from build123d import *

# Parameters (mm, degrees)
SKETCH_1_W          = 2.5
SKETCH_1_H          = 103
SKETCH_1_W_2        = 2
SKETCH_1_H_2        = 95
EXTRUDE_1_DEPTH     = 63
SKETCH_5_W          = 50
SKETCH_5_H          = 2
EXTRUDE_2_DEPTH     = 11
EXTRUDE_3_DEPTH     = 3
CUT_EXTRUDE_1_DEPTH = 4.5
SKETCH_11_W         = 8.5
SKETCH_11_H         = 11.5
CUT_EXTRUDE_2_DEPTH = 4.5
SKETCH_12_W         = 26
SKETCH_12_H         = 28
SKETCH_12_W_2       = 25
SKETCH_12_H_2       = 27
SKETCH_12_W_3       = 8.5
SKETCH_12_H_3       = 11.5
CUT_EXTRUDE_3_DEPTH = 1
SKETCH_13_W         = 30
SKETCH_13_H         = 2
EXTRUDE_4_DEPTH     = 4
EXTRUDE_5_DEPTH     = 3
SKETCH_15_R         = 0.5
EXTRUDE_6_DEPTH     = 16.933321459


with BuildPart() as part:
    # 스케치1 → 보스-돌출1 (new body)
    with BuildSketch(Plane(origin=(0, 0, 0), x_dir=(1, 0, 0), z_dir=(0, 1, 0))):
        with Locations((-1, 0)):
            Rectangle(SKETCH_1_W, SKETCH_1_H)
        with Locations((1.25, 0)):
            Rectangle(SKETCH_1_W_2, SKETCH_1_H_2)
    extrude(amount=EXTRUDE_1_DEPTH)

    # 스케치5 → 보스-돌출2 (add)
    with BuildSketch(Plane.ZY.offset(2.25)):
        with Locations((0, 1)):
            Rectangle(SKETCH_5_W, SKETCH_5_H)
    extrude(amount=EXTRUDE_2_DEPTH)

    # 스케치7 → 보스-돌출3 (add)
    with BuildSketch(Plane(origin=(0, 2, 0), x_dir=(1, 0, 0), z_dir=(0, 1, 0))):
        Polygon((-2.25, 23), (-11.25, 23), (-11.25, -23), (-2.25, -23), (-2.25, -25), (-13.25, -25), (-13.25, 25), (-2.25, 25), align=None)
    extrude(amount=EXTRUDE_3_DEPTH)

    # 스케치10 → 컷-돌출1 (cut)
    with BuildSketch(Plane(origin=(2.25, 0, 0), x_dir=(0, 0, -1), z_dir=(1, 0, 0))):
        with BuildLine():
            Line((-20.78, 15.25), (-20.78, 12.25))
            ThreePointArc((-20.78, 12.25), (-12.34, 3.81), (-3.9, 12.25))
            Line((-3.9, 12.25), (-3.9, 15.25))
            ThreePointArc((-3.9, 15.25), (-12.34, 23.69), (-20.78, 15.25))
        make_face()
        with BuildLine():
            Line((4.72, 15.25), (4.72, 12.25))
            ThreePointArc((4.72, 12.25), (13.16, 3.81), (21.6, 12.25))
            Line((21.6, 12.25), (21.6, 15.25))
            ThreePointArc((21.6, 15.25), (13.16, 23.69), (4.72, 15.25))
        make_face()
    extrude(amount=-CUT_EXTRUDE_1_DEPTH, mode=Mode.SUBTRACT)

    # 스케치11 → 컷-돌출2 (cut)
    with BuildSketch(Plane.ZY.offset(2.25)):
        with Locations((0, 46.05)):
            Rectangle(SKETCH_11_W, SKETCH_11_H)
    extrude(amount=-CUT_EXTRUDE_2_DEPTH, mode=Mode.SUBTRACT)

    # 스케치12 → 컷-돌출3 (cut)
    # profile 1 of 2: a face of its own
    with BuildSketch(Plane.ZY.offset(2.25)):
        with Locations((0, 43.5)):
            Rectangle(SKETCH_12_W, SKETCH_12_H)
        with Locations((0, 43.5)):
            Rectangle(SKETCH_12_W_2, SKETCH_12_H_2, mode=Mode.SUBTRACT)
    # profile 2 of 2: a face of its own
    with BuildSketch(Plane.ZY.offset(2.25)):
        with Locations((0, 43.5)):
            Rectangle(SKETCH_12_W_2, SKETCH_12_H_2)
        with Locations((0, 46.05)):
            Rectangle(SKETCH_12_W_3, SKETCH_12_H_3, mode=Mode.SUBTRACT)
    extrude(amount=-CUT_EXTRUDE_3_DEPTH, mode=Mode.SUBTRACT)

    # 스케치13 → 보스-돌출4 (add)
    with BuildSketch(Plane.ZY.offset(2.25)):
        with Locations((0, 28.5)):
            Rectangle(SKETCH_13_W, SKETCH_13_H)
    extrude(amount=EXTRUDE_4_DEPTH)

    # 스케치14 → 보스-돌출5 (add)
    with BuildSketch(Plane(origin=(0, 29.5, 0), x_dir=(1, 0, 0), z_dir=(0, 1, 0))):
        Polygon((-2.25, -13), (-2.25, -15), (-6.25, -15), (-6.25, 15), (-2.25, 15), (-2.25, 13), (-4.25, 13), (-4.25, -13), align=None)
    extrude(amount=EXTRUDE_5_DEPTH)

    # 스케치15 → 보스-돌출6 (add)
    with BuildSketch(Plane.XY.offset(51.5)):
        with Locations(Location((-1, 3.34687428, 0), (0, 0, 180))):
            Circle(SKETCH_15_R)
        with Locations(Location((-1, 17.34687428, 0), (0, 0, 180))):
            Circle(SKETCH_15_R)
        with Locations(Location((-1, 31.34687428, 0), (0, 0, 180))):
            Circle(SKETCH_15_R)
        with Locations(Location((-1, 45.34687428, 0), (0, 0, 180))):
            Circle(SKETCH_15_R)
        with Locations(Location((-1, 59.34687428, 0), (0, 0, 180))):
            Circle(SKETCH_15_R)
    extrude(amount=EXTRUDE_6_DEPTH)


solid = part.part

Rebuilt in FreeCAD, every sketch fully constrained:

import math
import FreeCAD as App
import Part
import Sketcher
from FreeCAD import Vector
Q = App.Units.Quantity


def add_polygon(sketch, points):
    """Adds a closed chain of lines whose ends are joined by coincident constraints."""
    first, n = sketch.GeometryCount, len(points)
    for a, b in zip(points, points[1:] + points[:1]):
        sketch.addGeometry(Part.LineSegment(App.Vector(*a, 0), App.Vector(*b, 0)), False)
    for i in range(n):
        sketch.addConstraint(Sketcher.Constraint("Coincident", first + i, 2, first + (i + 1) % n, 1))

doc = App.newDocument("Part")
params = doc.addObject("Spreadsheet::Sheet", "Params")
for row, (alias, value) in enumerate([
    ("sketch1_width", "2 mm"),
    ("sketch1_height", "103 mm"),
    ("sketch1_height2", "4 mm"),
    ("sketch1_width2", "2.5 mm"),
    ("pad1_length", "63 mm"),
    ("sketch2_width", "2 mm"),
    ("sketch2_height", "50 mm"),
    ("pad2_length", "11 mm"),
    ("sketch3_width", "9 mm"),
    ("sketch3_width2", "11 mm"),
    ("sketch3_height", "2 mm"),
    ("sketch3_height2", "50 mm"),
    ("pad3_length", "3 mm"),
    ("sketch4_width", "3 mm"),
    ("sketch4_radius", "8.44 mm"),
    ("pocket1_length", "4.5 mm"),
    ("sketch5_width", "11.5 mm"),
    ("sketch5_height", "8.5 mm"),
    ("pocket2_length", "4.5 mm"),
    ("sketch6_width", "28 mm"),
    ("sketch6_height", "26 mm"),
    ("sketch6_width2", "11.5 mm"),
    ("sketch6_height2", "8.5 mm"),
    ("pocket3_length", "1 mm"),
    ("sketch7_width", "2 mm"),
    ("sketch7_height", "30 mm"),
    ("pad4_length", "4 mm"),
    ("sketch8_width", "2 mm"),
    ("sketch8_width2", "4 mm"),
    ("sketch8_height", "26 mm"),
    ("pad5_length", "3 mm"),
    ("sketch9_diameter", "1 mm"),
    ("pad6_length", "16.933321 mm"),
], start=1):
    params.set(f"A{row}", alias)
    params.set(f"B{row}", "=" + value)
    params.setAlias(f"B{row}", alias)

body = doc.addObject("PartDesign::Body", "Body")

sketch1 = body.newObject("Sketcher::SketchObject", "Sketch")
sketch1.AttachmentSupport = (doc.getObject("XZ_Plane"), [""])
sketch1.MapMode = "FlatFace"
add_polygon(sketch1, [(-2.25, -51.5), (-2.25, 51.5), (0.25, 51.5), (0.25, 47.5), (2.25, 47.5), (2.25, -47.5), (0.25, -47.5), (0.25, -51.5)])
sketch1.addConstraint(Sketcher.Constraint("Vertical", 0))
sketch1.addConstraint(Sketcher.Constraint("Horizontal", 1))
sketch1.addConstraint(Sketcher.Constraint("Vertical", 2))
sketch1.addConstraint(Sketcher.Constraint("Horizontal", 3))
sketch1.addConstraint(Sketcher.Constraint("Vertical", 4))
sketch1.addConstraint(Sketcher.Constraint("Horizontal", 5))
sketch1.addConstraint(Sketcher.Constraint("Vertical", 6))
sketch1.addConstraint(Sketcher.Constraint("Horizontal", 7))
sketch1.addConstraint(Sketcher.Constraint("Symmetric", 2, 2, 5, 2, -1))
sketch1.addConstraint(Sketcher.Constraint("Equal", 2, 6))
sketch1.addConstraint(Sketcher.Constraint("DistanceX", 3, 1, 3, 2, Q("2 mm")))
sketch1.addConstraint(Sketcher.Constraint("DistanceY", 0, 1, 0, 2, Q("103 mm")))
sketch1.addConstraint(Sketcher.Constraint("DistanceY", 2, 2, 2, 1, Q("4 mm")))
sketch1.addConstraint(Sketcher.Constraint("DistanceX", 1, 1, 1, 2, Q("2.5 mm")))
sketch1.addConstraint(Sketcher.Constraint("DistanceX", 0, 2, -1, 1, Q("2.25 mm")))
sketch1.setExpression("Constraints[18]", "Params.sketch1_width")
sketch1.setExpression("Constraints[19]", "Params.sketch1_height")
sketch1.setExpression("Constraints[20]", "Params.sketch1_height2")
sketch1.setExpression("Constraints[21]", "Params.sketch1_width2")
pad1 = body.newObject("PartDesign::Pad", "Pad")
pad1.Profile = sketch1
pad1.setExpression("Length", "Params.pad1_length")
pad1.Reversed = True

sketch2 = body.newObject("Sketcher::SketchObject", "Sketch001")
sketch2.AttachmentSupport = (doc.getObject("YZ_Plane"), [""])
sketch2.MapMode = "FlatFace"
sketch2.AttachmentOffset = App.Placement(Vector(0, 0, -2.25), App.Rotation())
add_polygon(sketch2, [(2, -25), (0, -25), (0, 25), (2, 25)])
sketch2.addConstraint(Sketcher.Constraint("Horizontal", 0))
sketch2.addConstraint(Sketcher.Constraint("Vertical", 1))
sketch2.addConstraint(Sketcher.Constraint("Horizontal", 2))
sketch2.addConstraint(Sketcher.Constraint("Vertical", 3))
sketch2.addConstraint(Sketcher.Constraint("Symmetric", 0, 2, 1, 2, -1, 1))
sketch2.addConstraint(Sketcher.Constraint("DistanceX", 0, 2, 0, 1, Q("2 mm")))
sketch2.addConstraint(Sketcher.Constraint("DistanceY", 1, 1, 1, 2, Q("50 mm")))
sketch2.setExpression("Constraints[9]", "Params.sketch2_width")
sketch2.setExpression("Constraints[10]", "Params.sketch2_height")
pad2 = body.newObject("PartDesign::Pad", "Pad001")
pad2.Profile = sketch2
pad2.setExpression("Length", "Params.pad2_length")
pad2.Reversed = True

sketch3 = body.newObject("Sketcher::SketchObject", "Sketch002")
sketch3.AttachmentSupport = (doc.getObject("XZ_Plane"), [""])
sketch3.MapMode = "FlatFace"
sketch3.AttachmentOffset = App.Placement(Vector(0, 0, -2), App.Rotation())
add_polygon(sketch3, [(-11.25, -23), (-2.25, -23), (-2.25, -25), (-13.25, -25), (-13.25, 25), (-2.25, 25), (-2.25, 23), (-11.25, 23)])
sketch3.addConstraint(Sketcher.Constraint("Horizontal", 0))
sketch3.addConstraint(Sketcher.Constraint("Vertical", 1))
sketch3.addConstraint(Sketcher.Constraint("Horizontal", 2))
sketch3.addConstraint(Sketcher.Constraint("Vertical", 3))
sketch3.addConstraint(Sketcher.Constraint("Horizontal", 4))
sketch3.addConstraint(Sketcher.Constraint("Vertical", 5))
sketch3.addConstraint(Sketcher.Constraint("Horizontal", 6))
sketch3.addConstraint(Sketcher.Constraint("Vertical", 7))
sketch3.addConstraint(Sketcher.Constraint("Symmetric", 1, 2, 4, 2, -1))
sketch3.addConstraint(Sketcher.Constraint("Equal", 1, 5))
sketch3.addConstraint(Sketcher.Constraint("DistanceX", 0, 1, 0, 2, Q("9 mm")))
sketch3.addConstraint(Sketcher.Constraint("DistanceX", 2, 2, 2, 1, Q("11 mm")))
sketch3.addConstraint(Sketcher.Constraint("DistanceY", 1, 2, 1, 1, Q("2 mm")))
sketch3.addConstraint(Sketcher.Constraint("DistanceY", 3, 1, 3, 2, Q("50 mm")))
sketch3.addConstraint(Sketcher.Constraint("DistanceX", 0, 2, -1, 1, Q("2.25 mm")))
sketch3.setExpression("Constraints[18]", "Params.sketch3_width")
sketch3.setExpression("Constraints[19]", "Params.sketch3_width2")
sketch3.setExpression("Constraints[20]", "Params.sketch3_height")
sketch3.setExpression("Constraints[21]", "Params.sketch3_height2")
pad3 = body.newObject("PartDesign::Pad", "Pad002")
pad3.Profile = sketch3
pad3.setExpression("Length", "Params.pad3_length")
pad3.Reversed = True

sketch4 = body.newObject("Sketcher::SketchObject", "Sketch003")
sketch4.AttachmentSupport = (doc.getObject("YZ_Plane"), [""])
sketch4.MapMode = "FlatFace"
sketch4.AttachmentOffset = App.Placement(Vector(0, 0, 2.25), App.Rotation())
sketch4.addGeometry(Part.LineSegment(Vector(15.25, 20.78, 0), Vector(12.25, 20.78, 0)), False)
sketch4.addGeometry(Part.ArcOfCircle(Part.Circle(Vector(12.25, 12.34, 0), Vector(0, 0, 1), 8.44), math.radians(90), math.radians(270)), False)
sketch4.addGeometry(Part.LineSegment(Vector(12.25, 3.9, 0), Vector(15.25, 3.9, 0)), False)
sketch4.addGeometry(Part.ArcOfCircle(Part.Circle(Vector(15.25, 12.34, 0), Vector(0, 0, 1), 8.44), math.radians(-90), math.radians(90)), False)
sketch4.addGeometry(Part.LineSegment(Vector(15.25, -4.72, 0), Vector(12.25, -4.72, 0)), False)
sketch4.addGeometry(Part.ArcOfCircle(Part.Circle(Vector(12.25, -13.16, 0), Vector(0, 0, 1), 8.44), math.radians(90), math.radians(270)), False)
sketch4.addGeometry(Part.LineSegment(Vector(12.25, -21.6, 0), Vector(15.25, -21.6, 0)), False)
sketch4.addGeometry(Part.ArcOfCircle(Part.Circle(Vector(15.25, -13.16, 0), Vector(0, 0, 1), 8.44), math.radians(-90), math.radians(90)), False)
sketch4.addConstraint(Sketcher.Constraint("Tangent", 0, 2, 1, 1))
sketch4.addConstraint(Sketcher.Constraint("Tangent", 1, 2, 2, 1))
sketch4.addConstraint(Sketcher.Constraint("Tangent", 2, 2, 3, 1))
sketch4.addConstraint(Sketcher.Constraint("Tangent", 3, 2, 0, 1))
sketch4.addConstraint(Sketcher.Constraint("Tangent", 4, 2, 5, 1))
sketch4.addConstraint(Sketcher.Constraint("Tangent", 5, 2, 6, 1))
sketch4.addConstraint(Sketcher.Constraint("Tangent", 6, 2, 7, 1))
sketch4.addConstraint(Sketcher.Constraint("Tangent", 7, 2, 4, 1))
sketch4.addConstraint(Sketcher.Constraint("Horizontal", 0))
sketch4.addConstraint(Sketcher.Constraint("Horizontal", 2))
sketch4.addConstraint(Sketcher.Constraint("Horizontal", 4))
sketch4.addConstraint(Sketcher.Constraint("Horizontal", 6))
sketch4.addConstraint(Sketcher.Constraint("Equal", 3, 5))
sketch4.addConstraint(Sketcher.Constraint("Vertical", 1, 3, 5, 3))
sketch4.addConstraint(Sketcher.Constraint("Vertical", 3, 3, 7, 3))
sketch4.addConstraint(Sketcher.Constraint("DistanceX", 0, 2, 0, 1, Q("3 mm")))
sketch4.addConstraint(Sketcher.Constraint("Radius", 1, Q("8.44 mm")))
sketch4.addConstraint(Sketcher.Constraint("DistanceY", -1, 1, 1, 2, Q("3.9 mm")))
sketch4.addConstraint(Sketcher.Constraint("DistanceY", 5, 2, -1, 1, Q("21.6 mm")))
sketch4.addConstraint(Sketcher.Constraint("DistanceX", -1, 1, 1, 3, Q("12.25 mm")))
sketch4.setExpression("Constraints[15]", "Params.sketch4_width")
sketch4.setExpression("Constraints[16]", "Params.sketch4_radius")
pocket1 = body.newObject("PartDesign::Pocket", "Pocket")
pocket1.Profile = sketch4
pocket1.setExpression("Length", "Params.pocket1_length")

sketch5 = body.newObject("Sketcher::SketchObject", "Sketch004")
sketch5.AttachmentSupport = (doc.getObject("YZ_Plane"), [""])
sketch5.MapMode = "FlatFace"
sketch5.AttachmentOffset = App.Placement(Vector(0, 0, -2.25), App.Rotation())
add_polygon(sketch5, [(51.8, -4.25), (40.3, -4.25), (40.3, 4.25), (51.8, 4.25)])
sketch5.addConstraint(Sketcher.Constraint("Horizontal", 0))
sketch5.addConstraint(Sketcher.Constraint("Vertical", 1))
sketch5.addConstraint(Sketcher.Constraint("Horizontal", 2))
sketch5.addConstraint(Sketcher.Constraint("Vertical", 3))
sketch5.addConstraint(Sketcher.Constraint("DistanceX", 0, 2, 0, 1, Q("11.5 mm")))
sketch5.addConstraint(Sketcher.Constraint("DistanceY", 1, 1, 1, 2, Q("8.5 mm")))
sketch5.addConstraint(Sketcher.Constraint("DistanceX", -1, 1, 0, 2, Q("40.3 mm")))
sketch5.addConstraint(Sketcher.Constraint("DistanceY", 0, 2, -1, 1, Q("4.25 mm")))
sketch5.setExpression("Constraints[8]", "Params.sketch5_width")
sketch5.setExpression("Constraints[9]", "Params.sketch5_height")
pocket2 = body.newObject("PartDesign::Pocket", "Pocket001")
pocket2.Profile = sketch5
pocket2.setExpression("Length", "Params.pocket2_length")
pocket2.Reversed = True

sketch6 = body.newObject("Sketcher::SketchObject", "Sketch005")
sketch6.AttachmentSupport = (doc.getObject("YZ_Plane"), [""])
sketch6.MapMode = "FlatFace"
sketch6.AttachmentOffset = App.Placement(Vector(0, 0, -2.25), App.Rotation())
add_polygon(sketch6, [(57.5, -13), (29.5, -13), (29.5, 13), (57.5, 13)])
add_polygon(sketch6, [(40.3, 4.25), (40.3, -4.25), (51.8, -4.25), (51.8, 4.25)])
sketch6.addConstraint(Sketcher.Constraint("Horizontal", 0))
sketch6.addConstraint(Sketcher.Constraint("Vertical", 1))
sketch6.addConstraint(Sketcher.Constraint("Horizontal", 2))
sketch6.addConstraint(Sketcher.Constraint("Vertical", 3))
sketch6.addConstraint(Sketcher.Constraint("Vertical", 4))
sketch6.addConstraint(Sketcher.Constraint("Horizontal", 5))
sketch6.addConstraint(Sketcher.Constraint("Vertical", 6))
sketch6.addConstraint(Sketcher.Constraint("Horizontal", 7))
sketch6.addConstraint(Sketcher.Constraint("DistanceX", 0, 2, 0, 1, Q("28 mm")))
sketch6.addConstraint(Sketcher.Constraint("DistanceY", 1, 1, 1, 2, Q("26 mm")))
sketch6.addConstraint(Sketcher.Constraint("DistanceX", 5, 1, 5, 2, Q("11.5 mm")))
sketch6.addConstraint(Sketcher.Constraint("DistanceY", 4, 2, 4, 1, Q("8.5 mm")))
sketch6.addConstraint(Sketcher.Constraint("DistanceY", 0, 2, -1, 1, Q("13 mm")))
sketch6.addConstraint(Sketcher.Constraint("DistanceX", -1, 1, 0, 2, Q("29.5 mm")))
sketch6.addConstraint(Sketcher.Constraint("DistanceX", -1, 1, 4, 2, Q("40.3 mm")))
sketch6.addConstraint(Sketcher.Constraint("DistanceY", 4, 2, -1, 1, Q("4.25 mm")))
sketch6.setExpression("Constraints[16]", "Params.sketch6_width")
sketch6.setExpression("Constraints[17]", "Params.sketch6_height")
sketch6.setExpression("Constraints[18]", "Params.sketch6_width2")
sketch6.setExpression("Constraints[19]", "Params.sketch6_height2")
pocket3 = body.newObject("PartDesign::Pocket", "Pocket002")
pocket3.Profile = sketch6
pocket3.setExpression("Length", "Params.pocket3_length")
pocket3.Reversed = True

sketch7 = body.newObject("Sketcher::SketchObject", "Sketch006")
sketch7.AttachmentSupport = (doc.getObject("YZ_Plane"), [""])
sketch7.MapMode = "FlatFace"
sketch7.AttachmentOffset = App.Placement(Vector(0, 0, -2.25), App.Rotation())
add_polygon(sketch7, [(29.5, -15), (27.5, -15), (27.5, 15), (29.5, 15)])
sketch7.addConstraint(Sketcher.Constraint("Horizontal", 0))
sketch7.addConstraint(Sketcher.Constraint("Vertical", 1))
sketch7.addConstraint(Sketcher.Constraint("Horizontal", 2))
sketch7.addConstraint(Sketcher.Constraint("Vertical", 3))
sketch7.addConstraint(Sketcher.Constraint("DistanceX", 0, 2, 0, 1, Q("2 mm")))
sketch7.addConstraint(Sketcher.Constraint("DistanceY", 1, 1, 1, 2, Q("30 mm")))
sketch7.addConstraint(Sketcher.Constraint("DistanceY", 0, 2, -1, 1, Q("15 mm")))
sketch7.addConstraint(Sketcher.Constraint("DistanceX", -1, 1, 0, 2, Q("27.5 mm")))
sketch7.setExpression("Constraints[8]", "Params.sketch7_width")
sketch7.setExpression("Constraints[9]", "Params.sketch7_height")
pad4 = body.newObject("PartDesign::Pad", "Pad003")
pad4.Profile = sketch7
pad4.setExpression("Length", "Params.pad4_length")
pad4.Reversed = True

sketch8 = body.newObject("Sketcher::SketchObject", "Sketch007")
sketch8.AttachmentSupport = (doc.getObject("XZ_Plane"), [""])
sketch8.MapMode = "FlatFace"
sketch8.AttachmentOffset = App.Placement(Vector(0, 0, -29.5), App.Rotation())
add_polygon(sketch8, [(-2.25, 15), (-2.25, 13), (-4.25, 13), (-4.25, -13), (-2.25, -13), (-2.25, -15), (-6.25, -15), (-6.25, 15)])
sketch8.addConstraint(Sketcher.Constraint("Vertical", 0))
sketch8.addConstraint(Sketcher.Constraint("Horizontal", 1))
sketch8.addConstraint(Sketcher.Constraint("Vertical", 2))
sketch8.addConstraint(Sketcher.Constraint("Horizontal", 3))
sketch8.addConstraint(Sketcher.Constraint("Vertical", 4))
sketch8.addConstraint(Sketcher.Constraint("Horizontal", 5))
sketch8.addConstraint(Sketcher.Constraint("Vertical", 6))
sketch8.addConstraint(Sketcher.Constraint("Horizontal", 7))
sketch8.addConstraint(Sketcher.Constraint("Symmetric", 0, 2, 3, 2, -1))
sketch8.addConstraint(Sketcher.Constraint("Equal", 3, 0))
sketch8.addConstraint(Sketcher.Constraint("Equal", 0, 4))
sketch8.addConstraint(Sketcher.Constraint("DistanceX", 1, 2, 1, 1, Q("2 mm")))
sketch8.addConstraint(Sketcher.Constraint("DistanceX", 5, 2, 5, 1, Q("4 mm")))
sketch8.addConstraint(Sketcher.Constraint("DistanceY", 2, 2, 2, 1, Q("26 mm")))
sketch8.addConstraint(Sketcher.Constraint("DistanceX", 0, 2, -1, 1, Q("2.25 mm")))
sketch8.setExpression("Constraints[19]", "Params.sketch8_width")
sketch8.setExpression("Constraints[20]", "Params.sketch8_width2")
sketch8.setExpression("Constraints[21]", "Params.sketch8_height")
pad5 = body.newObject("PartDesign::Pad", "Pad004")
pad5.Profile = sketch8
pad5.setExpression("Length", "Params.pad5_length")
pad5.Reversed = True

sketch9 = body.newObject("Sketcher::SketchObject", "Sketch008")
sketch9.AttachmentSupport = (doc.getObject("XY_Plane"), [""])
sketch9.MapMode = "FlatFace"
sketch9.AttachmentOffset = App.Placement(Vector(0, 0, 51.5), App.Rotation())
sketch9.addGeometry(Part.Circle(Vector(-1, 3.346874, 0), Vector(0, 0, 1), 0.5), False)
sketch9.addGeometry(Part.Circle(Vector(-1, 17.346874, 0), Vector(0, 0, 1), 0.5), False)
sketch9.addGeometry(Part.Circle(Vector(-1, 31.346874, 0), Vector(0, 0, 1), 0.5), False)
sketch9.addGeometry(Part.Circle(Vector(-1, 45.346874, 0), Vector(0, 0, 1), 0.5), False)
sketch9.addGeometry(Part.Circle(Vector(-1, 59.346874, 0), Vector(0, 0, 1), 0.5), False)
sketch9.addConstraint(Sketcher.Constraint("Equal", 0, 1))
sketch9.addConstraint(Sketcher.Constraint("Equal", 1, 2))
sketch9.addConstraint(Sketcher.Constraint("Equal", 2, 3))
sketch9.addConstraint(Sketcher.Constraint("Equal", 3, 4))
sketch9.addConstraint(Sketcher.Constraint("Vertical", 0, 3, 1, 3))
sketch9.addConstraint(Sketcher.Constraint("Vertical", 1, 3, 2, 3))
sketch9.addConstraint(Sketcher.Constraint("Vertical", 2, 3, 3, 3))
sketch9.addConstraint(Sketcher.Constraint("Vertical", 3, 3, 4, 3))
sketch9.addConstraint(Sketcher.Constraint("Diameter", 0, Q("1 mm")))
sketch9.addConstraint(Sketcher.Constraint("DistanceX", 0, 3, -1, 1, Q("1 mm")))
sketch9.addConstraint(Sketcher.Constraint("DistanceY", 0, 3, 1, 3, Q("14 mm")))
sketch9.addConstraint(Sketcher.Constraint("DistanceY", 1, 3, 2, 3, Q("14 mm")))
sketch9.addConstraint(Sketcher.Constraint("DistanceY", 2, 3, 3, 3, Q("14 mm")))
sketch9.addConstraint(Sketcher.Constraint("DistanceY", 3, 3, 4, 3, Q("14 mm")))
sketch9.addConstraint(Sketcher.Constraint("DistanceY", -1, 1, 0, 3, Q("3.346874 mm")))
sketch9.setExpression("Constraints[8]", "Params.sketch9_diameter")
pad6 = body.newObject("PartDesign::Pad", "Pad005")
pad6.Profile = sketch9
pad6.setExpression("Length", "Params.pad6_length")

doc.recompute()
